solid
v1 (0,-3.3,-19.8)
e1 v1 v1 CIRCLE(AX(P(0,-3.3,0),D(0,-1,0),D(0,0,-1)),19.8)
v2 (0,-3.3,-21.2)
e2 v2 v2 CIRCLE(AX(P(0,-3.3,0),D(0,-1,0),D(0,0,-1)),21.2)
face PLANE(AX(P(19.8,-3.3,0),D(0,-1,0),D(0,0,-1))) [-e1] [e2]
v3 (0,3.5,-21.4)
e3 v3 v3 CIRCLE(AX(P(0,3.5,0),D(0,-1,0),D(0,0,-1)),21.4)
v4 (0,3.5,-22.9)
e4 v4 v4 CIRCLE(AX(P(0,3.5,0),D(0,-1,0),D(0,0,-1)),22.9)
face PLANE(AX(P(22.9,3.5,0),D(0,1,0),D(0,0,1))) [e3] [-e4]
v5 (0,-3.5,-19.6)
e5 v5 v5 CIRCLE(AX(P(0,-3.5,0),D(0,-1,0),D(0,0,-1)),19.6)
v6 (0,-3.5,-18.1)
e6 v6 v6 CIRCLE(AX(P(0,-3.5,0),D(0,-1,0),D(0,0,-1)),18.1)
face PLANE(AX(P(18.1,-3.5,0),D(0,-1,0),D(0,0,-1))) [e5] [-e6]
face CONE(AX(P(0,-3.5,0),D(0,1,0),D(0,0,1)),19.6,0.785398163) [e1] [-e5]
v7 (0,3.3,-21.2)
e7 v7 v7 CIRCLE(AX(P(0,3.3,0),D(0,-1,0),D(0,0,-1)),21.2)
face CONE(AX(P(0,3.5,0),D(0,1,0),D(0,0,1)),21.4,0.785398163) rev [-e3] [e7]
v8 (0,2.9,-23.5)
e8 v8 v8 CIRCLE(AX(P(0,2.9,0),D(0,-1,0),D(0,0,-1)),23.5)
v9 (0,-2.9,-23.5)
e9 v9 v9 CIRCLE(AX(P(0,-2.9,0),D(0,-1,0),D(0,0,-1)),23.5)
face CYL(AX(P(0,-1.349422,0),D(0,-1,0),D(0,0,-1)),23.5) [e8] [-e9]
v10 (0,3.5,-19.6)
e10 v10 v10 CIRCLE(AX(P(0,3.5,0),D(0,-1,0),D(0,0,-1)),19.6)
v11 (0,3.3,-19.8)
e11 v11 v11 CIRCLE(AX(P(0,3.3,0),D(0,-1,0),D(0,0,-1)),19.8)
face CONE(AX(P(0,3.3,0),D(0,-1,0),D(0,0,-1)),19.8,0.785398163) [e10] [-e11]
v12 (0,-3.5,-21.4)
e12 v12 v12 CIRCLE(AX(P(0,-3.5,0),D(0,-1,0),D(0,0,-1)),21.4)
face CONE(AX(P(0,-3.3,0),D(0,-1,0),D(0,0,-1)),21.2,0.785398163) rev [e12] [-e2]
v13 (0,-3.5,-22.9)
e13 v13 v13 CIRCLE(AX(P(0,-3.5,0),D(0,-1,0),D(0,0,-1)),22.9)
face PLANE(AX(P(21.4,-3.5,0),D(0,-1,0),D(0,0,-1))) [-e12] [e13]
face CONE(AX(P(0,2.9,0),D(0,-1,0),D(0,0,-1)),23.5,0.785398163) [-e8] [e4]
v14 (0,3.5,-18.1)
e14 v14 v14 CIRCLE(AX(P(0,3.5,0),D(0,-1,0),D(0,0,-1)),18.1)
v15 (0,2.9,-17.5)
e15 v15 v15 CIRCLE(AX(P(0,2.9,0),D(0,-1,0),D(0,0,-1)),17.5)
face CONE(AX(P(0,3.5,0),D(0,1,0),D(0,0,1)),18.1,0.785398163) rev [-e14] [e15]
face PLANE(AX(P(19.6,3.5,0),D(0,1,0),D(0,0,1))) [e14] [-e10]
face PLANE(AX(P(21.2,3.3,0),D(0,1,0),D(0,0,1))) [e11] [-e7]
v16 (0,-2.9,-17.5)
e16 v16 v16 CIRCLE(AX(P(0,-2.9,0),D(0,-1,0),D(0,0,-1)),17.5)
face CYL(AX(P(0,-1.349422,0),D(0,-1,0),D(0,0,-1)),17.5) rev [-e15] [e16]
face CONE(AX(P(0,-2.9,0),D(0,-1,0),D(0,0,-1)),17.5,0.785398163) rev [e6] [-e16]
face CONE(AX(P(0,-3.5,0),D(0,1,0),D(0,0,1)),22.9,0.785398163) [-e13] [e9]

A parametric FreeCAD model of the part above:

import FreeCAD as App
import Part
import Sketcher
from FreeCAD import Vector
Q = App.Units.Quantity

doc = App.newDocument("Part")
body = doc.addObject("PartDesign::Body", "Body")

sketch1 = body.newObject("Sketcher::SketchObject", "Sketch")
sketch1.AttachmentSupport = (doc.getObject("XY_Plane"), [""])
sketch1.MapMode = "FlatFace"
sketch1.addGeometry([
    Part.LineSegment(Vector(17.5, 2.9, 0), Vector(17.5, -2.9, 0)),
    Part.LineSegment(Vector(17.5, -2.9, 0), Vector(18.1, -3.5, 0)),
    Part.LineSegment(Vector(18.1, -3.5, 0), Vector(19.6, -3.5, 0)),
    Part.LineSegment(Vector(19.6, -3.5, 0), Vector(19.8, -3.3, 0)),
    Part.LineSegment(Vector(19.8, -3.3, 0), Vector(21.2, -3.3, 0)),
    Part.LineSegment(Vector(21.2, -3.3, 0), Vector(21.4, -3.5, 0)),
    Part.LineSegment(Vector(21.4, -3.5, 0), Vector(22.9, -3.5, 0)),
    Part.LineSegment(Vector(22.9, -3.5, 0), Vector(23.5, -2.9, 0)),
    Part.LineSegment(Vector(23.5, -2.9, 0), Vector(23.5, 2.9, 0)),
    Part.LineSegment(Vector(23.5, 2.9, 0), Vector(22.9, 3.5, 0)),
    Part.LineSegment(Vector(22.9, 3.5, 0), Vector(21.4, 3.5, 0)),
    Part.LineSegment(Vector(21.4, 3.5, 0), Vector(21.2, 3.3, 0)),
    Part.LineSegment(Vector(21.2, 3.3, 0), Vector(19.8, 3.3, 0)),
    Part.LineSegment(Vector(19.8, 3.3, 0), Vector(19.6, 3.5, 0)),
    Part.LineSegment(Vector(19.6, 3.5, 0), Vector(18.1, 3.5, 0)),
    Part.LineSegment(Vector(18.1, 3.5, 0), Vector(17.5, 2.9, 0)),
], False)
sketch1.addConstraint([
    Sketcher.Constraint("Coincident", 0, 2, 1, 1),
    Sketcher.Constraint("Coincident", 1, 2, 2, 1),
    Sketcher.Constraint("Coincident", 2, 2, 3, 1),
    Sketcher.Constraint("Coincident", 3, 2, 4, 1),
    Sketcher.Constraint("Coincident", 4, 2, 5, 1),
    Sketcher.Constraint("Coincident", 5, 2, 6, 1),
    Sketcher.Constraint("Coincident", 6, 2, 7, 1),
    Sketcher.Constraint("Coincident", 7, 2, 8, 1),
    Sketcher.Constraint("Coincident", 8, 2, 9, 1),
    Sketcher.Constraint("Coincident", 9, 2, 10, 1),
    Sketcher.Constraint("Coincident", 10, 2, 11, 1),
    Sketcher.Constraint("Coincident", 11, 2, 12, 1),
    Sketcher.Constraint("Coincident", 12, 2, 13, 1),
    Sketcher.Constraint("Coincident", 13, 2, 14, 1),
    Sketcher.Constraint("Coincident", 14, 2, 15, 1),
    Sketcher.Constraint("Coincident", 15, 2, 0, 1),
    Sketcher.Constraint("Vertical", 0),
    Sketcher.Constraint("Horizontal", 2),
    Sketcher.Constraint("Horizontal", 4),
    Sketcher.Constraint("Horizontal", 6),
    Sketcher.Constraint("Vertical", 8),
    Sketcher.Constraint("Horizontal", 10),
    Sketcher.Constraint("Horizontal", 12),
    Sketcher.Constraint("Horizontal", 14),
    Sketcher.Constraint("Symmetric", 6, 2, 9, 2, -1),
    Sketcher.Constraint("Symmetric", 4, 2, 11, 2, -1),
    Sketcher.Constraint("Symmetric", 2, 2, 13, 2, -1),
    Sketcher.Constraint("Perpendicular", 1, 3),
    Sketcher.Constraint("Perpendicular", 3, 5),
    Sketcher.Constraint("Perpendicular", 5, 7),
    Sketcher.Constraint("Perpendicular", 7, 9),
    Sketcher.Constraint("Perpendicular", 9, 11),
    Sketcher.Constraint("Perpendicular", 11, 13),
    Sketcher.Constraint("Perpendicular", 13, 15),
    Sketcher.Constraint("Horizontal", 2, 2, 5, 2),
    Sketcher.Constraint("Horizontal", 0, 2, 7, 2),
    Sketcher.Constraint("Horizontal", 8, 2, 15, 2),
    Sketcher.Constraint("Vertical", 5, 2, 10, 2),
    Sketcher.Constraint("Equal", 2, 6),
    Sketcher.Constraint("DistanceX", 2, 1, 2, 2, Q("1.5 mm")),
    Sketcher.Constraint("DistanceX", 4, 1, 4, 2, Q("1.4 mm")),
    Sketcher.Constraint("DistanceY", 0, 2, 0, 1, Q("5.8 mm")),
    Sketcher.Constraint("DistanceY", 6, 2, 9, 2, Q("7 mm")),
    Sketcher.Constraint("DistanceX", -1, 1, 0, 2, Q("17.5 mm")),
    Sketcher.Constraint("DistanceX", -1, 1, 3, 2, Q("19.8 mm")),
])
revolution = body.newObject("PartDesign::Revolution", "Revolution")
revolution.Profile = sketch1
revolution.ReferenceAxis = (sketch1, ["V_Axis"])
revolution.Angle = 360

doc.recompute()
